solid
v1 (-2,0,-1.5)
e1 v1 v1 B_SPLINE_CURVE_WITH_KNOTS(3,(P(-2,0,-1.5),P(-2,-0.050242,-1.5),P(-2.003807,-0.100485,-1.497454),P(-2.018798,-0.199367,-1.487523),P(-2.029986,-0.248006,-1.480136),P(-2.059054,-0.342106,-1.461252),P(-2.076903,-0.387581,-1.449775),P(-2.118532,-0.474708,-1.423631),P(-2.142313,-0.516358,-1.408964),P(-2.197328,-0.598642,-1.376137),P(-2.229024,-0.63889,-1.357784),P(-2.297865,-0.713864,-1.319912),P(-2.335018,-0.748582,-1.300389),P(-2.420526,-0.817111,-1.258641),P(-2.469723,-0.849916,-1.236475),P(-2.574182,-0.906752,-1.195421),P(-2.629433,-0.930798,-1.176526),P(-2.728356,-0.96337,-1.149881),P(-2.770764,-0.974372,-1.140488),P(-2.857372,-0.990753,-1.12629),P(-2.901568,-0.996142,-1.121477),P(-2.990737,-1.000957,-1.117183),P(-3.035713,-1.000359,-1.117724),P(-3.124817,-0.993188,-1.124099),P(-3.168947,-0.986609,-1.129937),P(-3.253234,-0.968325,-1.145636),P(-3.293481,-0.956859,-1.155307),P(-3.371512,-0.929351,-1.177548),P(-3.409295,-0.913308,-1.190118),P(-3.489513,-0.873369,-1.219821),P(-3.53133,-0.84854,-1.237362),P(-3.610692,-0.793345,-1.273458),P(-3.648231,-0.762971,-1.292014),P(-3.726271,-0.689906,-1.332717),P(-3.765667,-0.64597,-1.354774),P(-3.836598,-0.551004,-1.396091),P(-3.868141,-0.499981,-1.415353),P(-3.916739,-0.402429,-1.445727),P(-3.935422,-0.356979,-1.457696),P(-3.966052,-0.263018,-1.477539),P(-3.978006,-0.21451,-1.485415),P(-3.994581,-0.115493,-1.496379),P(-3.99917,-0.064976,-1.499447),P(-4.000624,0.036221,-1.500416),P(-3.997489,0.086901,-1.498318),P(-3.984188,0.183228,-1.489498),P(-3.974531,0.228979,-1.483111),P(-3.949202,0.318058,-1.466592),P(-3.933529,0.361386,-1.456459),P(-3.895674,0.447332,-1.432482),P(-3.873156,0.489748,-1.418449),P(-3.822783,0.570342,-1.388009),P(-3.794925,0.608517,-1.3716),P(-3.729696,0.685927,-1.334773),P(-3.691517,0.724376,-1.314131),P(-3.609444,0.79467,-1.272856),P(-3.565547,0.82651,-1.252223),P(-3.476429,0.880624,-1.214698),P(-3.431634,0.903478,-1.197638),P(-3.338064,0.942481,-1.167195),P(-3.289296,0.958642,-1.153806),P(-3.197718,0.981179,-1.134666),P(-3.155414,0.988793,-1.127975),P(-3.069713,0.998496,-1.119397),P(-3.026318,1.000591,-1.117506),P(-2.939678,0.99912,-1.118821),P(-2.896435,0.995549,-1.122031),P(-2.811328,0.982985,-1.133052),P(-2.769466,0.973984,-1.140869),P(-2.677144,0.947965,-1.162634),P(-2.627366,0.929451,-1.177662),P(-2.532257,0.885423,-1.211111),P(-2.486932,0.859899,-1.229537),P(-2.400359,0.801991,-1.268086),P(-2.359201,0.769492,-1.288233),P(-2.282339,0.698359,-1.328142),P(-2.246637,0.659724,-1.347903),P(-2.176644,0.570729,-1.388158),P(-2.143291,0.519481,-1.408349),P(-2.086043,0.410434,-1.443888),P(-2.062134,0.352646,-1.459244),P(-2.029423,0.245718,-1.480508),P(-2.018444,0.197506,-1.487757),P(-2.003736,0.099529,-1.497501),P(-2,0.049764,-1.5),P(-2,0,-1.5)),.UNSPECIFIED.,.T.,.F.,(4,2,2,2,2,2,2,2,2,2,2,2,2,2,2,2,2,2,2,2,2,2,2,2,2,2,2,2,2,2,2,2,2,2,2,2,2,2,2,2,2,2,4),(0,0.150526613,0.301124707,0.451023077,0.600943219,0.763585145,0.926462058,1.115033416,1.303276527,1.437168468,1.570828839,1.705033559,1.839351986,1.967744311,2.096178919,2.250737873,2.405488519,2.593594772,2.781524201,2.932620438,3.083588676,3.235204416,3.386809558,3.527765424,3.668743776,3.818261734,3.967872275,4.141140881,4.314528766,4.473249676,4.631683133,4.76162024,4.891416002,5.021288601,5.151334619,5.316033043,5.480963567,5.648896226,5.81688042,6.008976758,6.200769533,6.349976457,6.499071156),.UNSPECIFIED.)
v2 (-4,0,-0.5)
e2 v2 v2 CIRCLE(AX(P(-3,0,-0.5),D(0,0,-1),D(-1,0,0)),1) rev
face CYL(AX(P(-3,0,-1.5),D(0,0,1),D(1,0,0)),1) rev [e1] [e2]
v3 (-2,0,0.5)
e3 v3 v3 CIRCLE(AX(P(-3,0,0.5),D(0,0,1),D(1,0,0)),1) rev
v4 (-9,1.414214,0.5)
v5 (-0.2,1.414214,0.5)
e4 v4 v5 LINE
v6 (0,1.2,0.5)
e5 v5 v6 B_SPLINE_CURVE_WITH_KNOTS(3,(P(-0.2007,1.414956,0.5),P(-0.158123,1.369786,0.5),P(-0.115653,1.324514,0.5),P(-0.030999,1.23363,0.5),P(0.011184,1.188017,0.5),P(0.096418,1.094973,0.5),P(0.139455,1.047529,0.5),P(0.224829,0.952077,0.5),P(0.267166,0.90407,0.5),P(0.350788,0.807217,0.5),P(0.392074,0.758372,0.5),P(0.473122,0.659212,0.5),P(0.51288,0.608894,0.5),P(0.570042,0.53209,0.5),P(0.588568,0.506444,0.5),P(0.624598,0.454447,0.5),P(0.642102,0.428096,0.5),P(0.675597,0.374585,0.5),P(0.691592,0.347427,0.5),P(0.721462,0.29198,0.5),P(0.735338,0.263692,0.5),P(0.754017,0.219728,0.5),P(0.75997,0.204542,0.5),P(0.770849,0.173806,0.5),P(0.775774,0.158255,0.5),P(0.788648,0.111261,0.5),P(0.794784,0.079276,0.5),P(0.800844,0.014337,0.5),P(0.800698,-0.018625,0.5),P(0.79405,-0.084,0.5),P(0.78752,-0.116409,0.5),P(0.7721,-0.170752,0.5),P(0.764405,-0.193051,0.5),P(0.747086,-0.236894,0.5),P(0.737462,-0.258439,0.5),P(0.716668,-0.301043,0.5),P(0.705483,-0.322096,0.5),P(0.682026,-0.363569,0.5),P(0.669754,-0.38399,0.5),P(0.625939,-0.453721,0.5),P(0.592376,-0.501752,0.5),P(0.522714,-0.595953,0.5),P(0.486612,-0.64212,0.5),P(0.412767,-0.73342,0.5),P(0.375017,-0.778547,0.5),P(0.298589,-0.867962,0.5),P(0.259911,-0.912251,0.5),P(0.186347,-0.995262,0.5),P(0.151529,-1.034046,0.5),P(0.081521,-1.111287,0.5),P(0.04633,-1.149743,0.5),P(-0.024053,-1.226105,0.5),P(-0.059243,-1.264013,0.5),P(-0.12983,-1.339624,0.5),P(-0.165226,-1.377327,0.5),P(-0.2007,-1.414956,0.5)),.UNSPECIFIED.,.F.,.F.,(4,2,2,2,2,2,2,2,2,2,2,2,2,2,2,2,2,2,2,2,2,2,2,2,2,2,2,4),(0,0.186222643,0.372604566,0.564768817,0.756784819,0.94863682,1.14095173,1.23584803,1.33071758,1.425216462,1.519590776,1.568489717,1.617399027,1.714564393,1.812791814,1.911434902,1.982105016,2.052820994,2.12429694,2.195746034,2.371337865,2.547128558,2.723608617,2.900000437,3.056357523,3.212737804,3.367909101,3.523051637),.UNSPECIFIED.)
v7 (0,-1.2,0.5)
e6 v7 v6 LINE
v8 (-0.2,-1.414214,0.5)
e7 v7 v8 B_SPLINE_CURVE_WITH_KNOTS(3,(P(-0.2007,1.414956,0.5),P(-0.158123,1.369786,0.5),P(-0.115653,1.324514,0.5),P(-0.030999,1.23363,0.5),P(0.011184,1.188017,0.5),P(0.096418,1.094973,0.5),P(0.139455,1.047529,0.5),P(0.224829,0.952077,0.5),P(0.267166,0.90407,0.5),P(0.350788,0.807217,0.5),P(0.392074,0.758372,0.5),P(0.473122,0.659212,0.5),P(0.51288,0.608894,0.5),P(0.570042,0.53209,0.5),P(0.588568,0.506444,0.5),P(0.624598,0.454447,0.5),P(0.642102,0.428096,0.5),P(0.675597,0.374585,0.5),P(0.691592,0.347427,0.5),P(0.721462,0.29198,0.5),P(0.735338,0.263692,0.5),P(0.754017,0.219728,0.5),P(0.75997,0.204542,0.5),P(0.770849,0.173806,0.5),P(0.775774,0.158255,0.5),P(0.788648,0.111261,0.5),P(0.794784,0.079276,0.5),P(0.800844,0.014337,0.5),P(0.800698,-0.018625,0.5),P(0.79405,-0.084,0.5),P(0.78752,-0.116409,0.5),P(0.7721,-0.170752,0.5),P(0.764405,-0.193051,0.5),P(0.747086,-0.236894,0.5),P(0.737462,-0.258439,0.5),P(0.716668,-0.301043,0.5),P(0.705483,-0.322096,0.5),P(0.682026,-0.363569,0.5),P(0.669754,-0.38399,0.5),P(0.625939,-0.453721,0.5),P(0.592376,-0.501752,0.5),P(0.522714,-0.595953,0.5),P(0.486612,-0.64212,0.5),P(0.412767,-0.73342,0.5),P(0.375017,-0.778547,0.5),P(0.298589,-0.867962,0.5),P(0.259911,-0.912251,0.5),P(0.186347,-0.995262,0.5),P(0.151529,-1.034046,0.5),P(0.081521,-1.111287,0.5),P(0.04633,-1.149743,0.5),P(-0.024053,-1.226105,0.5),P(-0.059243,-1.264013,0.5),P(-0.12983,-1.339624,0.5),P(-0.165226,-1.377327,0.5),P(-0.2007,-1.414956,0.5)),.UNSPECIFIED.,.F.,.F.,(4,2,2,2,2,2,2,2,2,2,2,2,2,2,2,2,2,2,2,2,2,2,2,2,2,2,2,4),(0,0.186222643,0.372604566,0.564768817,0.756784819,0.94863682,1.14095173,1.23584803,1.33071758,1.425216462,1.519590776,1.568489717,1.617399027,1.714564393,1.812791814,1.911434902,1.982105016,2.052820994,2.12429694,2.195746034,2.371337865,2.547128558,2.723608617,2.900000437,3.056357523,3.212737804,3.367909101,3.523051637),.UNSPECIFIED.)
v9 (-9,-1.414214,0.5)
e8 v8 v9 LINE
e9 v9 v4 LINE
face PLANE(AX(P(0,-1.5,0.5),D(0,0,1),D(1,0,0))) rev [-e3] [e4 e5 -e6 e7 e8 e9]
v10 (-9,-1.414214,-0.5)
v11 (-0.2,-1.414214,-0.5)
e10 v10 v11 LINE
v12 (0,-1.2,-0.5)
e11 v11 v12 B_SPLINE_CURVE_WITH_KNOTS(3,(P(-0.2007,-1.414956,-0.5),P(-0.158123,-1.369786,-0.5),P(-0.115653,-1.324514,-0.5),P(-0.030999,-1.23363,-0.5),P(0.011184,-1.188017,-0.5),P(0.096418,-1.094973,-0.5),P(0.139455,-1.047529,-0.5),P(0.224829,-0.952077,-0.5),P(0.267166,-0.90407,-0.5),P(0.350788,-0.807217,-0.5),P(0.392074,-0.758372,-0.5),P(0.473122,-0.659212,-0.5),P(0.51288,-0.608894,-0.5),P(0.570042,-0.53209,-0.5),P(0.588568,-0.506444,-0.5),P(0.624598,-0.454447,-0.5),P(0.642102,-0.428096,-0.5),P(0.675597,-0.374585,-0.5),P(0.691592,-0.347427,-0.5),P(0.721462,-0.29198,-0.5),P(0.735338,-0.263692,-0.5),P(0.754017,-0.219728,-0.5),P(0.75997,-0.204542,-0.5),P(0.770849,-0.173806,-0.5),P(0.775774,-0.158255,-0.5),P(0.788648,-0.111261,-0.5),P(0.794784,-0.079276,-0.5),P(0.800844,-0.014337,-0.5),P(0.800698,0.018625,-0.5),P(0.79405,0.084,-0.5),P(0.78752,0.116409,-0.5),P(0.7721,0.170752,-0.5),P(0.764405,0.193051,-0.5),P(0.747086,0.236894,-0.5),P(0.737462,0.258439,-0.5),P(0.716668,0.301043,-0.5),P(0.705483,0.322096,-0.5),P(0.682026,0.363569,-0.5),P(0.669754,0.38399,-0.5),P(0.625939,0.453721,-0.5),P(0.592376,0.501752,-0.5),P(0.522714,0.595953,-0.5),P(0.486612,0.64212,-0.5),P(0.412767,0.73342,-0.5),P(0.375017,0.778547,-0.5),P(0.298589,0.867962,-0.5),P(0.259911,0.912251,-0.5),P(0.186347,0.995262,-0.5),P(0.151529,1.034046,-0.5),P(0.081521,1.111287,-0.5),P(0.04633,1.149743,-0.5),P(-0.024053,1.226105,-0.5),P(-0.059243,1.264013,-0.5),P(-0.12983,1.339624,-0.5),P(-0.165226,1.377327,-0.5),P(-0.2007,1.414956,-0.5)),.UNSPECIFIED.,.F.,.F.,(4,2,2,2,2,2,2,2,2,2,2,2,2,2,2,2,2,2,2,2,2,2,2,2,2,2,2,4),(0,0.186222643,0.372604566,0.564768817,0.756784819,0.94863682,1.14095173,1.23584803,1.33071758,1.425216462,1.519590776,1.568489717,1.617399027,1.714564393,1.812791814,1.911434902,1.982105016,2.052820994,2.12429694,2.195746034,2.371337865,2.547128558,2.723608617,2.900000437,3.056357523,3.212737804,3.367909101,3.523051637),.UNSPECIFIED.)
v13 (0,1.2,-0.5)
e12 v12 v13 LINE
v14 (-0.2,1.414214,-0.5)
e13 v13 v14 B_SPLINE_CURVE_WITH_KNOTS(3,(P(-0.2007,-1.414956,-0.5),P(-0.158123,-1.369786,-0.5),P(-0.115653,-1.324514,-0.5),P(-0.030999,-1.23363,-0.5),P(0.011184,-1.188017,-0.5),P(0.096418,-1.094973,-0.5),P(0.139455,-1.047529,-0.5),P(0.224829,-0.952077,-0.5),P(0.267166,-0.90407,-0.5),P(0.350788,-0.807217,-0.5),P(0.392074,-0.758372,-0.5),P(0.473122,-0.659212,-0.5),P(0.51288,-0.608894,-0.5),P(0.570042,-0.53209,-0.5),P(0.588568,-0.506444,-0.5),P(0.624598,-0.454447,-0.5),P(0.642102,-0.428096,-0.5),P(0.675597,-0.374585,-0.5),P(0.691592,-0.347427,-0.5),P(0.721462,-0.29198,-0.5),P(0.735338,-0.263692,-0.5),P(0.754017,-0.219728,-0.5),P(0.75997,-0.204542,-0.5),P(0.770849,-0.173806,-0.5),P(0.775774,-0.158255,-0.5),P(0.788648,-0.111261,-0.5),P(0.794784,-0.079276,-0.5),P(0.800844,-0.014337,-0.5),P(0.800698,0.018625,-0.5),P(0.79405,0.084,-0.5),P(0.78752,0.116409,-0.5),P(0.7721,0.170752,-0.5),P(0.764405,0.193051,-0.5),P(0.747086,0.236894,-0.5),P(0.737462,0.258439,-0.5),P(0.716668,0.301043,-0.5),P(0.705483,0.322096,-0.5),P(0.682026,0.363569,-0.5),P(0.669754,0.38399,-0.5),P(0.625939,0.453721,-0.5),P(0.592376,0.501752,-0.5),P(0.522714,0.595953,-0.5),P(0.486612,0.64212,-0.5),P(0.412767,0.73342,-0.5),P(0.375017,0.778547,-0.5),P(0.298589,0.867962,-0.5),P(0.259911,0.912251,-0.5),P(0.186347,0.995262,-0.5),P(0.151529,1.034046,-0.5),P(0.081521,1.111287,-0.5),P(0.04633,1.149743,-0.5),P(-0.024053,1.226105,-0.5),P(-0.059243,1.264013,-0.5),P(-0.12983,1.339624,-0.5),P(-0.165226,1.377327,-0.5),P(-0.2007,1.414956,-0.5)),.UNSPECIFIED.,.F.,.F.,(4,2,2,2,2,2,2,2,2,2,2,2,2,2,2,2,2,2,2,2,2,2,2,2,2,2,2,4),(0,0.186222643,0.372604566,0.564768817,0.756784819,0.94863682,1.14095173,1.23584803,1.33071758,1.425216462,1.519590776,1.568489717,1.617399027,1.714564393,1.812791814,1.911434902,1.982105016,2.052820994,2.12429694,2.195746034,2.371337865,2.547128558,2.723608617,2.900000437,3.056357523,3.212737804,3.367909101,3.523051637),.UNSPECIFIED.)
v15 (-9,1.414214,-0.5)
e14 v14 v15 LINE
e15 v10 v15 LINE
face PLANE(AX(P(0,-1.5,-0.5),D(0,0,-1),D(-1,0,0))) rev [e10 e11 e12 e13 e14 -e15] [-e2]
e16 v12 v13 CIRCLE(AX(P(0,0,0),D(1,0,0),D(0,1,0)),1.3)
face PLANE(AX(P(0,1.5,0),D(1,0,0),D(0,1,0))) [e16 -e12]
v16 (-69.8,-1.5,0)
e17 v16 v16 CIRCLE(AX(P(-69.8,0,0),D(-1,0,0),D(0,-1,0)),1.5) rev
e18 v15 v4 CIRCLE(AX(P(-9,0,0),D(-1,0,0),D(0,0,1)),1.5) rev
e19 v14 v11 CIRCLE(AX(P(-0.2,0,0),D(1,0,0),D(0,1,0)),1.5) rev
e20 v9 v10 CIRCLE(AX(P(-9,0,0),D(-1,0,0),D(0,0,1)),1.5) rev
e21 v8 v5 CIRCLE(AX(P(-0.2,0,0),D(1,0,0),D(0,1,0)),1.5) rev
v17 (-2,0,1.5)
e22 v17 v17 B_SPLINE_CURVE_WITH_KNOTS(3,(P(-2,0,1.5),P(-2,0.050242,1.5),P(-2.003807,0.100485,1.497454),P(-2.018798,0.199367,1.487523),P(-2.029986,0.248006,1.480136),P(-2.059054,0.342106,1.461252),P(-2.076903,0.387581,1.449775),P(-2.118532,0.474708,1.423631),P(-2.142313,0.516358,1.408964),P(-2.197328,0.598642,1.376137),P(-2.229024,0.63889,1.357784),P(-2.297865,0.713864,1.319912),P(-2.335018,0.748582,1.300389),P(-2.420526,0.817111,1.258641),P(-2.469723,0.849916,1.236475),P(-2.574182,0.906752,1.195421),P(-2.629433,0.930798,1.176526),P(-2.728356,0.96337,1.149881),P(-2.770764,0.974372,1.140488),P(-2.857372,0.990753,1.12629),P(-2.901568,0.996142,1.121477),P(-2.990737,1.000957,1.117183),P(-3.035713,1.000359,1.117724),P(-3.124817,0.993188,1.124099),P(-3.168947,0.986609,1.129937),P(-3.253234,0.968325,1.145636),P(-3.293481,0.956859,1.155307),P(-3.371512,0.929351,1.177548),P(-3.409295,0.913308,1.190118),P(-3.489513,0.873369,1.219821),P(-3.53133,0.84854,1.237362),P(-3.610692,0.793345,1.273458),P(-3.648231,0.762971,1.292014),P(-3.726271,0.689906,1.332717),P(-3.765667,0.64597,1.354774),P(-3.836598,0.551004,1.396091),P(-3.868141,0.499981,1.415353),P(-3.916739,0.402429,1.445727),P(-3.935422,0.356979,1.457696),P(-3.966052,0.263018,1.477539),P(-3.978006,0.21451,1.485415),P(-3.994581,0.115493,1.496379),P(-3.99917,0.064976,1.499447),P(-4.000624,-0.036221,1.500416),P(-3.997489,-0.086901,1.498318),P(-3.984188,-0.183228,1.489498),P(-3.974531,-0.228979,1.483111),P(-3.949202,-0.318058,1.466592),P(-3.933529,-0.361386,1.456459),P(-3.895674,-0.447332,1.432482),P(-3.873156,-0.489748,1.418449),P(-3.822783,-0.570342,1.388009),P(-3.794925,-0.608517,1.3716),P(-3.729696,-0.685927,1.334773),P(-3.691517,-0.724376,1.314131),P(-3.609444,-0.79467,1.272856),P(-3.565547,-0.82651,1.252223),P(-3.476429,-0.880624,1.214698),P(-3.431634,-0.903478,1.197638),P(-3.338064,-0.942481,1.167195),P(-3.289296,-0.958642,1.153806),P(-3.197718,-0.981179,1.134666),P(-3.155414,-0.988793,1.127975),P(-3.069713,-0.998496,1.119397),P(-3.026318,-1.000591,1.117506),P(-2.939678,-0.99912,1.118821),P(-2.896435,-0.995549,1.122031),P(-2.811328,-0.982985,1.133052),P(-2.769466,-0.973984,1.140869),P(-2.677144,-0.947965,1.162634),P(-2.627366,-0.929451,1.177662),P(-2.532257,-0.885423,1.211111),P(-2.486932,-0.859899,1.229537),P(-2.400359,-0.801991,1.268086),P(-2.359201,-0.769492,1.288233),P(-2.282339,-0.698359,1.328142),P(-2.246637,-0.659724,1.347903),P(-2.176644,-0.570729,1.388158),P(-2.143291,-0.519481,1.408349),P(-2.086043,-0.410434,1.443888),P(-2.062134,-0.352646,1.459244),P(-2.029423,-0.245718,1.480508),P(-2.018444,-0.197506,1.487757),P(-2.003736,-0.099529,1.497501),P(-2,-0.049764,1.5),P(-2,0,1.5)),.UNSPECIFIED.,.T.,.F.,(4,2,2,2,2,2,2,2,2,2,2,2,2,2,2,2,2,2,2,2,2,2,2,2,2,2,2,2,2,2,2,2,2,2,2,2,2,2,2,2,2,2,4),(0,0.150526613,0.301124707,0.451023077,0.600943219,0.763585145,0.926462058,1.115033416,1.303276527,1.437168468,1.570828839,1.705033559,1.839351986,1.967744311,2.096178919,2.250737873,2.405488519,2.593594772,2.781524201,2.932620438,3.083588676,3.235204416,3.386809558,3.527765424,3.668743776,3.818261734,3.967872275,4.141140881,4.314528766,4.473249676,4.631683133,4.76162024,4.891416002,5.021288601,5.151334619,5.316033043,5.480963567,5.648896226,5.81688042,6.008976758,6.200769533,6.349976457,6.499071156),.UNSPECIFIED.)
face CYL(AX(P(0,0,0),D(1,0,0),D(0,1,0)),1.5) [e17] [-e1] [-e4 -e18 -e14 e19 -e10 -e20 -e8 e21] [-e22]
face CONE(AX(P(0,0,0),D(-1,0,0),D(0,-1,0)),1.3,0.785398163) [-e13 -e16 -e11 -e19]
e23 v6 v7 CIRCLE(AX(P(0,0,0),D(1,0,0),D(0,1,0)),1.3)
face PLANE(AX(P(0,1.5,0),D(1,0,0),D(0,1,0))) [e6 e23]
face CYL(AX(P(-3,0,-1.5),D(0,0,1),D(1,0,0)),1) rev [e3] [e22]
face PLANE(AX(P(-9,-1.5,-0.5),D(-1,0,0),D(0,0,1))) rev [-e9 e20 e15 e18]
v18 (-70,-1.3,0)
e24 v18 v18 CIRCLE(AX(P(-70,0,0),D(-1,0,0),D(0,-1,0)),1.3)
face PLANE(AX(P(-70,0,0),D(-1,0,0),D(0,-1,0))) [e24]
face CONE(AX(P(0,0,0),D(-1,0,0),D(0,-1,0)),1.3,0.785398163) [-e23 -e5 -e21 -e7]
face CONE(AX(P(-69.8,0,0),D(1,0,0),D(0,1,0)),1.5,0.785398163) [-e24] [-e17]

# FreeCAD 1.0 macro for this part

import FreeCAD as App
import Part
import Sketcher

V = App.Vector


def edges_at(feature, points):
    """Names of the edges that pass closest to the given points."""
    edges = feature.Shape.Edges
    near = lambda p: min(range(len(edges)), key=lambda i: edges[i].distToShape(Part.Vertex(*p))[0])
    return sorted({f"Edge{near(p) + 1}" for p in points})


def add_polygon(sketch, points):
    """Adds a closed chain of lines whose ends are joined by coincident constraints."""
    first, n = sketch.GeometryCount, len(points)
    for a, b in zip(points, points[1:] + points[:1]):
        sketch.addGeometry(Part.LineSegment(App.Vector(*a, 0), App.Vector(*b, 0)), False)
    for i in range(n):
        sketch.addConstraint(Sketcher.Constraint("Coincident", first + i, 2, first + (i + 1) % n, 1))

doc = App.newDocument("Part")
body = doc.addObject("PartDesign::Body", "Body")

# Sketch on XY plane
sketch1 = body.newObject("Sketcher::SketchObject", "Sketch")
sketch1.AttachmentSupport = (doc.getObject("XY_Plane"), [""])
sketch1.MapMode = "FlatFace"
add_polygon(sketch1, [(-70, 1.5), (-70, 0), (0, 0), (0, 1.5)])  # lines 0-3
sketch1.addConstraint([
    Sketcher.Constraint("Vertical", 0),
    Sketcher.Constraint("Horizontal", 1),
    Sketcher.Constraint("Vertical", 2),
    Sketcher.Constraint("Horizontal", 3),
    Sketcher.Constraint("Coincident", 1, 2, -1, 1),
    Sketcher.Constraint("DistanceX", 1, 1, 1, 2, 70.0),
    Sketcher.Constraint("DistanceY", 0, 2, 0, 1, 1.5),
])
revolution = body.newObject("PartDesign::Revolution", "Revolution")
revolution.Profile = sketch1
revolution.ReferenceAxis = (sketch1, ["H_Axis"])
revolution.Angle = 360

# Sketch on XY plane
sketch2 = body.newObject("Sketcher::SketchObject", "Sketch001")
sketch2.AttachmentSupport = (doc.getObject("XY_Plane"), [""])
sketch2.MapMode = "FlatFace"
sketch2.addGeometry(Part.Circle(V(-3, 0, 0), V(0, 0, 1), 1), False)
sketch2.addConstraint([
    Sketcher.Constraint("PointOnObject", 0, 3, -1),
    Sketcher.Constraint("Diameter", 0, 2.0),
    Sketcher.Constraint("DistanceX", 0, 3, -1, 1, 3.0),
])
pocket1 = body.newObject("PartDesign::Pocket", "Pocket")
pocket1.Profile = sketch2
pocket1.Type = "ThroughAll"
pocket1.Midplane = True
doc.recompute()

chamfer = body.newObject("PartDesign::Chamfer", "Chamfer")
chamfer.Base = (pocket1, edges_at(pocket1, [(0, -1.5, 0), (-70, -1.5, 0)]))
chamfer.Size = 0.2

# Sketch on XZ plane
sketch3 = body.newObject("Sketcher::SketchObject", "Sketch002")
sketch3.AttachmentSupport = (doc.getObject("XZ_Plane"), [""])
sketch3.MapMode = "FlatFace"
add_polygon(sketch3, [(-9, -0.5), (-9, 0.5), (0, 0.5), (0, -0.5)])  # lines 0-3
sketch3.addConstraint([
    Sketcher.Constraint("Vertical", 0),
    Sketcher.Constraint("Horizontal", 1),
    Sketcher.Constraint("Vertical", 2),
    Sketcher.Constraint("Horizontal", 3),
    Sketcher.Constraint("Symmetric", 1, 2, 2, 2, -1, 1),
    Sketcher.Constraint("DistanceX", 1, 1, 1, 2, 9.0),
    Sketcher.Constraint("DistanceY", 0, 1, 0, 2, 1.0),
])
pocket2 = body.newObject("PartDesign::Pocket", "Pocket001")
pocket2.Profile = sketch3
pocket2.Type = "ThroughAll"
pocket2.Midplane = True

doc.recompute()
